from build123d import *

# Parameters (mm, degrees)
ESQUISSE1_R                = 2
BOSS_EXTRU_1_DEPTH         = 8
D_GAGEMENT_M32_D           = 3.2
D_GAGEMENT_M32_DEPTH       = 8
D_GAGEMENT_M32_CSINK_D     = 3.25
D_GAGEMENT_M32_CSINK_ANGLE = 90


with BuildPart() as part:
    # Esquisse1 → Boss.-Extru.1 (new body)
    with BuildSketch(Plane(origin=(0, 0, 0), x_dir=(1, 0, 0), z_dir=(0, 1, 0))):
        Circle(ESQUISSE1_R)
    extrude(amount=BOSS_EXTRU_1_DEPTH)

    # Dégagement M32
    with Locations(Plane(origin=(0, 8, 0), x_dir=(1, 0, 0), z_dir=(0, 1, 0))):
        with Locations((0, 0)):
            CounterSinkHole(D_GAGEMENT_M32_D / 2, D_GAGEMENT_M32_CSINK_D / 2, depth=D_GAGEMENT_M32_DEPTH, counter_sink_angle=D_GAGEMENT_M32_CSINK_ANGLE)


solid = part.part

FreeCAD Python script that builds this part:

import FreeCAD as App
import Part
import Sketcher

doc = App.newDocument("Part")
body = doc.addObject("PartDesign::Body", "Body")

# Sketch on XZ plane
sketch1 = doc.addObject("Sketcher::SketchObject", "Sketch")
body.addObject(sketch1)
sketch1.AttachmentSupport = (doc.XZ_Plane, [""])
sketch1.MapMode = "FlatFace"
sketch1.addGeometry(Part.Circle(App.Vector(0, 0, 0), App.Vector(0, 0, 1), 2), False)
sketch1.addConstraint([
    Sketcher.Constraint("Coincident", 0, 3, -1, 1),
    Sketcher.Constraint("Diameter", 0, 4.0),
])
pad1 = doc.addObject("PartDesign::Pad", "Pad")
body.addObject(pad1)
pad1.Profile = sketch1
pad1.Length = 8
pad1.Reversed = True

# Sketch on XZ plane
sketch2 = doc.addObject("Sketcher::SketchObject", "Sketch001")
body.addObject(sketch2)
sketch2.AttachmentSupport = (doc.XZ_Plane, [""])
sketch2.MapMode = "FlatFace"
sketch2.AttachmentOffset = App.Placement(App.Vector(0, 0, -8), App.Rotation())
sketch2.addGeometry(Part.Circle(App.Vector(0, 0, 0), App.Vector(0, 0, 1), 1.6), False)
sketch2.addConstraint([
    Sketcher.Constraint("Coincident", 0, 3, -1, 1),
    Sketcher.Constraint("Diameter", 0, 3.2),
])
doc.recompute()
hole = doc.addObject("PartDesign::Hole", "Hole")
body.addObject(hole)
hole.Profile = sketch2
hole.ThreadType = "None"
hole.Diameter = 3.2
hole.DepthType = "Dimension"
hole.Depth = 8
hole.DrillPoint = "Flat"
hole.HoleCutType = "Countersink"
hole.HoleCutDiameter = 3.25
hole.HoleCutCountersinkAngle = 90
hole.Reversed = True

doc.recompute()
